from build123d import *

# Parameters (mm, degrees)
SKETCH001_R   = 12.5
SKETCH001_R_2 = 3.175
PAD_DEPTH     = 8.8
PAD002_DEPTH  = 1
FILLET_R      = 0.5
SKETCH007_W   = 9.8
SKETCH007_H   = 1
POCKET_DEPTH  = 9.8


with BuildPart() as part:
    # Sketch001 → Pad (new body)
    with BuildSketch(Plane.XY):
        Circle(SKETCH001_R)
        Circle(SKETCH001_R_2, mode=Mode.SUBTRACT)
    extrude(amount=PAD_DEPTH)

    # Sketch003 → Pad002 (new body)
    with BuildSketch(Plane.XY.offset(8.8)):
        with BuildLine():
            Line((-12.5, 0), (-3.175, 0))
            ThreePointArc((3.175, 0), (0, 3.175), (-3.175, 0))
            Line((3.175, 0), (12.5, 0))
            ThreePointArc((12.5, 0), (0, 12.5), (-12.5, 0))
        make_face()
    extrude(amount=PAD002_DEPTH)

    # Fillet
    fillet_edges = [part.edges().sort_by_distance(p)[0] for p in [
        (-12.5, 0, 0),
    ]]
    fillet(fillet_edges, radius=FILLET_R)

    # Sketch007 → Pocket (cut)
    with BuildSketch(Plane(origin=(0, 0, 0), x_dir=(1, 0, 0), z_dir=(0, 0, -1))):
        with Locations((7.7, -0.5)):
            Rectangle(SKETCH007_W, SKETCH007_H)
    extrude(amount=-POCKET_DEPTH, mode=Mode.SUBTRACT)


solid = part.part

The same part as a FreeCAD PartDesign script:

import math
import FreeCAD as App
import Part
import Sketcher


def edges_at(feature, points):
    """Names of the edges that pass closest to the given points."""
    edges = feature.Shape.Edges
    near = lambda p: min(range(len(edges)), key=lambda i: edges[i].distToShape(Part.Vertex(*p))[0])
    return sorted({f"Edge{near(p) + 1}" for p in points})

doc = App.newDocument("Part")
body = doc.addObject("PartDesign::Body", "Body")

sketch1 = body.newObject("Sketcher::SketchObject", "Sketch")
sketch1.AttachmentSupport = (doc.getObject("XY_Plane"), [""])
sketch1.MapMode = "FlatFace"
sketch1.addGeometry(Part.Circle(App.Vector(0, 0, 0), App.Vector(0, 0, 1), 12.5), False)
sketch1.addGeometry(Part.Circle(App.Vector(0, 0, 0), App.Vector(0, 0, 1), 3.2), False)
sketch1.addConstraint(Sketcher.Constraint("Coincident", 0, 3, -1, 1))
sketch1.addConstraint(Sketcher.Constraint("Coincident", 1, 3, -1, 1))
sketch1.addConstraint(Sketcher.Constraint("Diameter", 0, 25.0))
sketch1.addConstraint(Sketcher.Constraint("Diameter", 1, 6.35))
pad1 = body.newObject("PartDesign::Pad", "Pad")
pad1.Profile = sketch1
pad1.Length = 8.8

sketch2 = body.newObject("Sketcher::SketchObject", "Sketch001")
sketch2.AttachmentSupport = (doc.getObject("XY_Plane"), [""])
sketch2.MapMode = "FlatFace"
sketch2.AttachmentOffset = App.Placement(App.Vector(0, 0, 8.8), App.Rotation())
sketch2.addGeometry(Part.LineSegment(App.Vector(-12.5, 0, 0), App.Vector(-3.2, 0, 0)), False)
sketch2.addGeometry(Part.ArcOfCircle(Part.Circle(App.Vector(0, 0, 0), App.Vector(0, 0, 1), 3.2), math.radians(0), math.radians(180)), False)
sketch2.addGeometry(Part.LineSegment(App.Vector(3.2, 0, 0), App.Vector(12.5, 0, 0)), False)
sketch2.addGeometry(Part.ArcOfCircle(Part.Circle(App.Vector(0, 0, 0), App.Vector(0, 0, 1), 12.5), math.radians(0), math.radians(180)), False)
sketch2.addConstraint(Sketcher.Constraint("Coincident", 0, 2, 1, 2))
sketch2.addConstraint(Sketcher.Constraint("Coincident", 1, 1, 2, 1))
sketch2.addConstraint(Sketcher.Constraint("Coincident", 2, 2, 3, 1))
sketch2.addConstraint(Sketcher.Constraint("Coincident", 3, 2, 0, 1))
sketch2.addConstraint(Sketcher.Constraint("Horizontal", 0))
sketch2.addConstraint(Sketcher.Constraint("Horizontal", 2))
sketch2.addConstraint(Sketcher.Constraint("Coincident", 1, 3, -1, 1))
sketch2.addConstraint(Sketcher.Constraint("Coincident", 3, 3, -1, 1))
sketch2.addConstraint(Sketcher.Constraint("PointOnObject", 0, 2, -1))
sketch2.addConstraint(Sketcher.Constraint("PointOnObject", 1, 1, -1))
sketch2.addConstraint(Sketcher.Constraint("Radius", 3, 12.5))
sketch2.addConstraint(Sketcher.Constraint("Radius", 1, 3.175))
pad2 = body.newObject("PartDesign::Pad", "Pad001")
pad2.Profile = sketch2
pad2.Length = 1
doc.recompute()

fillet = body.newObject("PartDesign::Fillet", "Fillet")
fillet.Base = (pad2, edges_at(pad2, [(-12.5, 0, 0)]))
fillet.Radius = 0.5

sketch3 = body.newObject("Sketcher::SketchObject", "Sketch002")
sketch3.AttachmentSupport = (doc.getObject("XY_Plane"), [""])
sketch3.MapMode = "FlatFace"
sketch3.addGeometry(Part.LineSegment(App.Vector(2.8, 0, 0), App.Vector(2.8, 1, 0)), False)
sketch3.addGeometry(Part.LineSegment(App.Vector(2.8, 1, 0), App.Vector(12.6, 1, 0)), False)
sketch3.addGeometry(Part.LineSegment(App.Vector(12.6, 1, 0), App.Vector(12.6, 0, 0)), False)
sketch3.addGeometry(Part.LineSegment(App.Vector(12.6, 0, 0), App.Vector(2.8, 0, 0)), False)
sketch3.addConstraint(Sketcher.Constraint("Coincident", 0, 2, 1, 1))
sketch3.addConstraint(Sketcher.Constraint("Coincident", 1, 2, 2, 1))
sketch3.addConstraint(Sketcher.Constraint("Coincident", 2, 2, 3, 1))
sketch3.addConstraint(Sketcher.Constraint("Coincident", 3, 2, 0, 1))
sketch3.addConstraint(Sketcher.Constraint("Vertical", 0))
sketch3.addConstraint(Sketcher.Constraint("Horizontal", 1))
sketch3.addConstraint(Sketcher.Constraint("Vertical", 2))
sketch3.addConstraint(Sketcher.Constraint("Horizontal", 3))
sketch3.addConstraint(Sketcher.Constraint("PointOnObject", 2, 2, -1))
sketch3.addConstraint(Sketcher.Constraint("DistanceY", 0, 1, 0, 2, 1.0))
sketch3.addConstraint(Sketcher.Constraint("DistanceX", 1, 1, 1, 2, 9.8))
sketch3.addConstraint(Sketcher.Constraint("DistanceX", -1, 1, 0, 2, 2.8))
pocket1 = body.newObject("PartDesign::Pocket", "Pocket")
pocket1.Profile = sketch3
pocket1.Length = 9.8
pocket1.Reversed = True

doc.recompute()
